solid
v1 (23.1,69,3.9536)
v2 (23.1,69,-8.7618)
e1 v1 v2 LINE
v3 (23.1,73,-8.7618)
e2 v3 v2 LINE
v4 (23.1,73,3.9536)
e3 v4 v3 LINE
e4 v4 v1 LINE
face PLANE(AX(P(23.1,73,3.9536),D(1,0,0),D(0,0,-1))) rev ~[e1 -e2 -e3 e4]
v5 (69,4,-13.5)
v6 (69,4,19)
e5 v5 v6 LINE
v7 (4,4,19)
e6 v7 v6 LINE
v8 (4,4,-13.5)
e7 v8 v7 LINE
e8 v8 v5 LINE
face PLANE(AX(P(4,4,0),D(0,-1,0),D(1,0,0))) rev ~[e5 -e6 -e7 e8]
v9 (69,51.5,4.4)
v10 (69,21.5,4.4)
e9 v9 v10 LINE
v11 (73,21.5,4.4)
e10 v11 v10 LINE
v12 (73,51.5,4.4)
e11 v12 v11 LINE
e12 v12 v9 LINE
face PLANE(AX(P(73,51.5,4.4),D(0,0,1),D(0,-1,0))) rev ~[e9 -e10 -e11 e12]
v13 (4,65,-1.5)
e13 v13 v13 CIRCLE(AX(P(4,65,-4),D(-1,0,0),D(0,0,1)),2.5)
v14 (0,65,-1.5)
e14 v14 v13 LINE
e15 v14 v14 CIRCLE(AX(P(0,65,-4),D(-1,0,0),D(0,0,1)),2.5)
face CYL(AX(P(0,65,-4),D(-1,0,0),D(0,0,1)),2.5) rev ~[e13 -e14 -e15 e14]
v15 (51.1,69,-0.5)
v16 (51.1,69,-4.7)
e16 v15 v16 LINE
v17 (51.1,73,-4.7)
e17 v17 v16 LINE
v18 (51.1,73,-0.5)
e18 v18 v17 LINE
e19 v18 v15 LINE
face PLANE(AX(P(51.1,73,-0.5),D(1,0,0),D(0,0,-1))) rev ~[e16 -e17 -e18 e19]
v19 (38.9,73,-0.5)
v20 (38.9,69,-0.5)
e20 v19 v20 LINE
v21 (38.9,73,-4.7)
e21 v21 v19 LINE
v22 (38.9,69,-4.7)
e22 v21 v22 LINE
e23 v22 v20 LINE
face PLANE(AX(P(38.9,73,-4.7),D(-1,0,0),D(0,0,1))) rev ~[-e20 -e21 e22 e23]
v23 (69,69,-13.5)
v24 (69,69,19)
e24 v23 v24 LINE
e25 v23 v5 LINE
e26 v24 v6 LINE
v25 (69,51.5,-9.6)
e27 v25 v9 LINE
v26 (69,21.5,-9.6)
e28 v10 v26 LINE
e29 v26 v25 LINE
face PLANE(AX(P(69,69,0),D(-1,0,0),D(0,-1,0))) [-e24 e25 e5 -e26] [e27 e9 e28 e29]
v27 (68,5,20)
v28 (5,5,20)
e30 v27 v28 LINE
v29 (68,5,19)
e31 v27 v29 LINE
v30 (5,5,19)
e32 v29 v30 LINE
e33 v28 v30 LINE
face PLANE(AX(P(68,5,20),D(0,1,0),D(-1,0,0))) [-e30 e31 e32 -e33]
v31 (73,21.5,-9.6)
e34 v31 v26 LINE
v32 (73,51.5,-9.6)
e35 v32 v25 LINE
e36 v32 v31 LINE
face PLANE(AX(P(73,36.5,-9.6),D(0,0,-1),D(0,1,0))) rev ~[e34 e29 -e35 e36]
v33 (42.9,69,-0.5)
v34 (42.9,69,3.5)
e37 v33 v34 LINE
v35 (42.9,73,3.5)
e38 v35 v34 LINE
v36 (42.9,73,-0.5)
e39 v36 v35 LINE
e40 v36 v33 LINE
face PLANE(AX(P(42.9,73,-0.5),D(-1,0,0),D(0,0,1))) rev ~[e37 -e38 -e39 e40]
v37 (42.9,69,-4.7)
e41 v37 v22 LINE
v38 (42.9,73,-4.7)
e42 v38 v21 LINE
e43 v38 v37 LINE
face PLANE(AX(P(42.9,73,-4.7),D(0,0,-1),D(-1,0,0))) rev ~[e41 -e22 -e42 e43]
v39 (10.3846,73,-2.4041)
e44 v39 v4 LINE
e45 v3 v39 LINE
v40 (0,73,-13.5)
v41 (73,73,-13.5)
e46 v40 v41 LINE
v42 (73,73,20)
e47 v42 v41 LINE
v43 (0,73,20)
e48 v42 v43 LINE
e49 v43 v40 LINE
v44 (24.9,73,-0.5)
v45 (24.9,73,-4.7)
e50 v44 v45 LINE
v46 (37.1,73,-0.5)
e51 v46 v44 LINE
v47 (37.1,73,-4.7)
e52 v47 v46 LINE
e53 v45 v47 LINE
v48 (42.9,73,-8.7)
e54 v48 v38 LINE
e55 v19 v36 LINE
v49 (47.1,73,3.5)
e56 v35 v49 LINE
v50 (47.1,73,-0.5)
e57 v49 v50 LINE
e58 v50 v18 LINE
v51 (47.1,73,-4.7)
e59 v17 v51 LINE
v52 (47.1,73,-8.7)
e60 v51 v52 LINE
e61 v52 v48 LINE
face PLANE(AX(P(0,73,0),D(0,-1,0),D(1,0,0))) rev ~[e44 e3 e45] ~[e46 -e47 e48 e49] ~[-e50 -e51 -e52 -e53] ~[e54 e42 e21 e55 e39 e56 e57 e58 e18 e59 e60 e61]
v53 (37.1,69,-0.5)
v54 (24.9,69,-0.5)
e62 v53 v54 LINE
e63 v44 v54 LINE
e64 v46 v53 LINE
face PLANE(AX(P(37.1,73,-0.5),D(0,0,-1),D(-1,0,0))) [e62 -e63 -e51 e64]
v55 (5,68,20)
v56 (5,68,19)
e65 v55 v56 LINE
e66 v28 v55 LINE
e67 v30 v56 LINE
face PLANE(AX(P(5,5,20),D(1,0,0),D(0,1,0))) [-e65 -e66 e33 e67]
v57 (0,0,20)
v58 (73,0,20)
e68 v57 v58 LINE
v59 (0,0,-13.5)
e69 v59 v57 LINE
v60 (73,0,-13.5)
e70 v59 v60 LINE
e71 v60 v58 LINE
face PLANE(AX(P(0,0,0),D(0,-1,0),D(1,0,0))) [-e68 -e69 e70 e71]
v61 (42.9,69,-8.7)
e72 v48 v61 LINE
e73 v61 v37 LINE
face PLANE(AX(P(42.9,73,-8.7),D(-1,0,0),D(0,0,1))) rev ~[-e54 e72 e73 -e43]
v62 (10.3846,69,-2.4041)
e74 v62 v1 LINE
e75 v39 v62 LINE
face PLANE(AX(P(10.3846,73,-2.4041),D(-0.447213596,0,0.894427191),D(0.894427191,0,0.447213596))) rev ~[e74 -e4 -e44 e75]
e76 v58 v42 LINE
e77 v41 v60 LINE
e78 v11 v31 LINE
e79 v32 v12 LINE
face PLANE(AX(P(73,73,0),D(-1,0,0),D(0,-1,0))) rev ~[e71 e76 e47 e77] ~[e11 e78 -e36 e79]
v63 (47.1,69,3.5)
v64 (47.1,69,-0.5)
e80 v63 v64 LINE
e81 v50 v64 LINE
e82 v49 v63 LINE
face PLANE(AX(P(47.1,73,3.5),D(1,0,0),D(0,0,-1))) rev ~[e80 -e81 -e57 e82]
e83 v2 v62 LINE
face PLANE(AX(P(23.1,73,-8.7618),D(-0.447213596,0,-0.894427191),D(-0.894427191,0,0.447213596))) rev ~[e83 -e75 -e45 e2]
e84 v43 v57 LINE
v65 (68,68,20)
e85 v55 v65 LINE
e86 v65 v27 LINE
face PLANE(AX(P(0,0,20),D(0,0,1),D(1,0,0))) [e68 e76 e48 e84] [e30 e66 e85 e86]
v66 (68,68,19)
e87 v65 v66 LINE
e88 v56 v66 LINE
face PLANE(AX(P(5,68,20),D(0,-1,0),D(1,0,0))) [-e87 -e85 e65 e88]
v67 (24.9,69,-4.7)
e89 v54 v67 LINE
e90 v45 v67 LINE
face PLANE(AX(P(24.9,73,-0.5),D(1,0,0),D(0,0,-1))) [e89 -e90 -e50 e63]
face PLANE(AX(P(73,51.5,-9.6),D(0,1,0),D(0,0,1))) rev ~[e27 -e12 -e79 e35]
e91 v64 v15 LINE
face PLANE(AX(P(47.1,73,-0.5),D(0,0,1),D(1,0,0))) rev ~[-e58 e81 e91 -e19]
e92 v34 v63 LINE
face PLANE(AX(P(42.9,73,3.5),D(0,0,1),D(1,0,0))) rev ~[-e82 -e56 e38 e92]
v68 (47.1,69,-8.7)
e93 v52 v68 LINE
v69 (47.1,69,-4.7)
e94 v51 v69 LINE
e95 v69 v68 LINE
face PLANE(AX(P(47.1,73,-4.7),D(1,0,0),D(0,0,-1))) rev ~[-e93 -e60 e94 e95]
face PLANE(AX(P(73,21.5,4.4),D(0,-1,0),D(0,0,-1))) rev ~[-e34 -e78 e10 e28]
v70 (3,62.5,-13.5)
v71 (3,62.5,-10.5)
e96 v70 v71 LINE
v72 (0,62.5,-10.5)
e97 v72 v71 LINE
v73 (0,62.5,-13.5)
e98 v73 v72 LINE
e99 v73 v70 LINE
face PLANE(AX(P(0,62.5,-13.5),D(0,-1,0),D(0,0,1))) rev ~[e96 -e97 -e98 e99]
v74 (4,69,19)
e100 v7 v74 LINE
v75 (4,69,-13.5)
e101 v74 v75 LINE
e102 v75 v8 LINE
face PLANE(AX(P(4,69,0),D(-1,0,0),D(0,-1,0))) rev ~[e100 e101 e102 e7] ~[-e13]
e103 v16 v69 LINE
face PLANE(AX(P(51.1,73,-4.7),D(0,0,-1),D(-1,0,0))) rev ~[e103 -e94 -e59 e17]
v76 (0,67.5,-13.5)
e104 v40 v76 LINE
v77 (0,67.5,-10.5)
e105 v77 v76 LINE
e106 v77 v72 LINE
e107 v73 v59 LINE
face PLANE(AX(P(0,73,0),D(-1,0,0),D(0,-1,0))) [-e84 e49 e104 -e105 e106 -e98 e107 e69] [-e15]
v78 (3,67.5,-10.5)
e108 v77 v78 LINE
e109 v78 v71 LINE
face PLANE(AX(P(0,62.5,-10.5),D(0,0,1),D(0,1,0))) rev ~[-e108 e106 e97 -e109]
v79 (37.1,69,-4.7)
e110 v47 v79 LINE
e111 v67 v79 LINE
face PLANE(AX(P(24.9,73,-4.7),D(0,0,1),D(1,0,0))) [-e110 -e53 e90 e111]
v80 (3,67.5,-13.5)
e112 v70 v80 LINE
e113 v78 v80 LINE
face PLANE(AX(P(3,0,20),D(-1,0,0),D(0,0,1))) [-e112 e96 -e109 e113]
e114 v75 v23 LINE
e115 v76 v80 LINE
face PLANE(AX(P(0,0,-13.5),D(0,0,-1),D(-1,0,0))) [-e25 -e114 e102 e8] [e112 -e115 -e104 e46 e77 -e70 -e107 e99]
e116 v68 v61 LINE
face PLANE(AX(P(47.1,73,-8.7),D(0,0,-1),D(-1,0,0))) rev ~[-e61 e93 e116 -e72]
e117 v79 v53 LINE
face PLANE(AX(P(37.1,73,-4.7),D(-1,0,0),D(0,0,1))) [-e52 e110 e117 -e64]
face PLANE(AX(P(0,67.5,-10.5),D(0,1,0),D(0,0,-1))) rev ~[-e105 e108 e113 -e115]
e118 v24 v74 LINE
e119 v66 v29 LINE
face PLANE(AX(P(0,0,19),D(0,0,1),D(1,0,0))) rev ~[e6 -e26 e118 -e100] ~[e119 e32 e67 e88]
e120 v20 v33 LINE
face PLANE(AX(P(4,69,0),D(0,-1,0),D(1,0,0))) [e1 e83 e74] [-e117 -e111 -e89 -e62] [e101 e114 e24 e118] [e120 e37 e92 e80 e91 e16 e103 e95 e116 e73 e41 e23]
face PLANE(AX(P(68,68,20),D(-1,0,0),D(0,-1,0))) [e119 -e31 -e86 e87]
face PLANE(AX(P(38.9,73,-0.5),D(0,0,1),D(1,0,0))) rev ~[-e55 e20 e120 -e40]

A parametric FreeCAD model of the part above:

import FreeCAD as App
import Part
import Sketcher
Q = App.Units.Quantity


def add_polygon(sketch, points):
    """Adds a closed chain of lines whose ends are joined by coincident constraints."""
    first, n = sketch.GeometryCount, len(points)
    for a, b in zip(points, points[1:] + points[:1]):
        sketch.addGeometry(Part.LineSegment(App.Vector(*a, 0), App.Vector(*b, 0)), False)
    for i in range(n):
        sketch.addConstraint(Sketcher.Constraint("Coincident", first + i, 2, first + (i + 1) % n, 1))

doc = App.newDocument("Part")
params = doc.addObject("Spreadsheet::Sheet", "Params")
for row, (alias, value) in enumerate([
    ("sketch1_width", "73 mm"),
    ("pad1_length", "20 mm"),
    ("sketch2_width", "65 mm"),
    ("pocket1_length", "20 mm"),
    ("sketch3_width", "65 mm"),
    ("pad2_length", "1 mm"),
    ("sketch4_width", "73 mm"),
    ("sketch4_width2", "65 mm"),
    ("pad3_length", "13.5 mm"),
    ("sketch5_width", "30 mm"),
    ("sketch5_height", "14 mm"),
    ("pocket2_length", "4 mm"),
    ("sketch6_diameter", "5 mm"),
    ("pocket3_length", "4 mm"),
    ("sketch7_width", "4 mm"),
    ("sketch7_width2", "4.4 mm"),
    ("sketch7_width3", "12.4 mm"),
    ("pocket4_length", "4 mm"),
    ("sketch8_width", "4 mm"),
    ("sketch8_width2", "4.4 mm"),
    ("sketch8_width3", "12.4 mm"),
    ("pad4_length", "4 mm"),
    ("sketch9_height", "3 mm"),
    ("sketch9_width", "5 mm"),
    ("pocket5_length", "3 mm"),
], start=1):
    params.set(f"A{row}", alias)
    params.set(f"B{row}", "=" + value)
    params.setAlias(f"B{row}", alias)

body = doc.addObject("PartDesign::Body", "Body")

# Sketch on XY plane
sketch1 = body.newObject("Sketcher::SketchObject", "Sketch")
sketch1.AttachmentSupport = (doc.getObject("XY_Plane"), [""])
sketch1.MapMode = "FlatFace"
add_polygon(sketch1, [(0, 73), (0, 0), (73, 0), (73, 73)])  # lines 0-3
sketch1.addConstraint([
    Sketcher.Constraint("Vertical", 0),
    Sketcher.Constraint("Horizontal", 1),
    Sketcher.Constraint("Vertical", 2),
    Sketcher.Constraint("Horizontal", 3),
    Sketcher.Constraint("Coincident", 0, 2, -1, 1),
    Sketcher.Constraint("Equal", 3, 0),
    Sketcher.Constraint("DistanceX", 1, 1, 1, 2, Q("73 mm")),
])
sketch1.setExpression("Constraints[10]", "Params.sketch1_width")
pad1 = body.newObject("PartDesign::Pad", "Pad")
pad1.Profile = sketch1
pad1.setExpression("Length", "Params.pad1_length")

# Sketch on XY plane
sketch2 = body.newObject("Sketcher::SketchObject", "Sketch001")
sketch2.AttachmentSupport = (doc.getObject("XY_Plane"), [""])
sketch2.MapMode = "FlatFace"
add_polygon(sketch2, [(4, 69), (69, 69), (69, 4), (4, 4)])  # lines 0-3
sketch2.addConstraint([
    Sketcher.Constraint("Horizontal", 0),
    Sketcher.Constraint("Vertical", 1),
    Sketcher.Constraint("Horizontal", 2),
    Sketcher.Constraint("Vertical", 3),
    Sketcher.Constraint("Equal", 2, 1),
    Sketcher.Constraint("DistanceY", -1, 1, 1, 2, Q("4 mm")),
    Sketcher.Constraint("DistanceX", -1, 1, 2, 2, Q("4 mm")),
    Sketcher.Constraint("DistanceX", 0, 1, 0, 2, Q("65 mm")),
])
sketch2.setExpression("Constraints[11]", "Params.sketch2_width")
pocket1 = body.newObject("PartDesign::Pocket", "Pocket")
pocket1.Profile = sketch2
pocket1.setExpression("Length", "Params.pocket1_length")
pocket1.Reversed = True

# Sketch on XY plane
sketch3 = body.newObject("Sketcher::SketchObject", "Sketch002")
sketch3.AttachmentSupport = (doc.getObject("XY_Plane"), [""])
sketch3.MapMode = "FlatFace"
sketch3.AttachmentOffset = App.Placement(App.Vector(0, 0, 20), App.Rotation())
add_polygon(sketch3, [(4, 69), (4, 4), (69, 4), (69, 69)])  # lines 0-3
add_polygon(sketch3, [(5, 5), (5, 68), (68, 68), (68, 5)])  # lines 4-7
sketch3.addConstraint([
    Sketcher.Constraint("Vertical", 0),
    Sketcher.Constraint("Horizontal", 1),
    Sketcher.Constraint("Vertical", 2),
    Sketcher.Constraint("Horizontal", 3),
    Sketcher.Constraint("Vertical", 4),
    Sketcher.Constraint("Horizontal", 5),
    Sketcher.Constraint("Vertical", 6),
    Sketcher.Constraint("Horizontal", 7),
    Sketcher.Constraint("Equal", 3, 0),
    Sketcher.Constraint("Equal", 7, 4),
    Sketcher.Constraint("DistanceX", 3, 2, 4, 2, Q("1 mm")),
    Sketcher.Constraint("DistanceY", 4, 2, 3, 2, Q("1 mm")),
    Sketcher.Constraint("DistanceX", 5, 2, 2, 2, Q("1 mm")),
    Sketcher.Constraint("DistanceX", 1, 1, 1, 2, Q("65 mm")),
    Sketcher.Constraint("DistanceX", -1, 1, 0, 2, Q("4 mm")),
    Sketcher.Constraint("DistanceY", -1, 1, 0, 2, Q("4 mm")),
])
sketch3.setExpression("Constraints[21]", "Params.sketch3_width")
pad2 = body.newObject("PartDesign::Pad", "Pad001")
pad2.Profile = sketch3
pad2.setExpression("Length", "Params.pad2_length")
pad2.Reversed = True

# Sketch on XY plane
sketch4 = body.newObject("Sketcher::SketchObject", "Sketch003")
sketch4.AttachmentSupport = (doc.getObject("XY_Plane"), [""])
sketch4.MapMode = "FlatFace"
add_polygon(sketch4, [(0, 0), (0, 73), (73, 73), (73, 0)])  # lines 0-3
add_polygon(sketch4, [(69, 69), (4, 69), (4, 4), (69, 4)])  # lines 4-7
sketch4.addConstraint([
    Sketcher.Constraint("Vertical", 0),
    Sketcher.Constraint("Horizontal", 1),
    Sketcher.Constraint("Vertical", 2),
    Sketcher.Constraint("Horizontal", 3),
    Sketcher.Constraint("Horizontal", 4),
    Sketcher.Constraint("Vertical", 5),
    Sketcher.Constraint("Horizontal", 6),
    Sketcher.Constraint("Vertical", 7),
    Sketcher.Constraint("Coincident", 3, 2, -1, 1),
    Sketcher.Constraint("Equal", 3, 0),
    Sketcher.Constraint("Equal", 6, 5),
    Sketcher.Constraint("DistanceX", 1, 1, 1, 2, Q("73 mm")),
    Sketcher.Constraint("DistanceX", 4, 2, 4, 1, Q("65 mm")),
    Sketcher.Constraint("DistanceX", -1, 1, 4, 2, Q("4 mm")),
    Sketcher.Constraint("DistanceY", -1, 1, 4, 2, Q("69 mm")),
])
sketch4.setExpression("Constraints[19]", "Params.sketch4_width")
sketch4.setExpression("Constraints[20]", "Params.sketch4_width2")
pad3 = body.newObject("PartDesign::Pad", "Pad002")
pad3.Profile = sketch4
pad3.setExpression("Length", "Params.pad3_length")
pad3.Reversed = True

# Sketch on YZ plane
sketch5 = body.newObject("Sketcher::SketchObject", "Sketch004")
sketch5.AttachmentSupport = (doc.getObject("YZ_Plane"), [""])
sketch5.MapMode = "FlatFace"
sketch5.AttachmentOffset = App.Placement(App.Vector(0, 0, 73), App.Rotation())
add_polygon(sketch5, [(22, -10), (52, -10), (52, 4), (22, 4)])  # lines 0-3
sketch5.addConstraint([
    Sketcher.Constraint("Horizontal", 0),
    Sketcher.Constraint("Vertical", 1),
    Sketcher.Constraint("Horizontal", 2),
    Sketcher.Constraint("Vertical", 3),
    Sketcher.Constraint("DistanceX", 0, 1, 0, 2, Q("30 mm")),
    Sketcher.Constraint("DistanceY", 1, 1, 1, 2, Q("14 mm")),
    Sketcher.Constraint("DistanceX", -1, 1, 0, 2, Q("51.5 mm")),
    Sketcher.Constraint("DistanceY", 0, 2, -1, 1, Q("9.6 mm")),
])
sketch5.setExpression("Constraints[8]", "Params.sketch5_width")
sketch5.setExpression("Constraints[9]", "Params.sketch5_height")
pocket2 = body.newObject("PartDesign::Pocket", "Pocket001")
pocket2.Profile = sketch5
pocket2.setExpression("Length", "Params.pocket2_length")

# Sketch on YZ plane
sketch6 = body.newObject("Sketcher::SketchObject", "Sketch005")
sketch6.AttachmentSupport = (doc.getObject("YZ_Plane"), [""])
sketch6.MapMode = "FlatFace"
sketch6.addGeometry(Part.Circle(App.Vector(65, -4, 0), App.Vector(0, 0, 1), 2.5), False)
sketch6.addConstraint([
    Sketcher.Constraint("Diameter", 0, Q("5 mm")),
    Sketcher.Constraint("DistanceX", -1, 1, 0, 3, Q("65 mm")),
    Sketcher.Constraint("DistanceY", 0, 3, -1, 1, Q("4 mm")),
])
sketch6.setExpression("Constraints[0]", "Params.sketch6_diameter")
pocket3 = body.newObject("PartDesign::Pocket", "Pocket002")
pocket3.Profile = sketch6
pocket3.setExpression("Length", "Params.pocket3_length")
pocket3.Reversed = True

# Sketch on XZ plane
sketch7 = body.newObject("Sketcher::SketchObject", "Sketch006")
sketch7.AttachmentSupport = (doc.getObject("XZ_Plane"), [""])
sketch7.MapMode = "FlatFace"
sketch7.AttachmentOffset = App.Placement(App.Vector(0, 0, -73), App.Rotation())
add_polygon(sketch7, [(47.2, -0.4), (51.2, -0.4), (51.2, -4.8), (47.2, -4.8), (47.2, -8.8), (42.8, -8.8), (42.8, -4.8), (38.8, -4.8), (38.8, -0.4), (42.8, -0.4), (42.8, 3.6), (47.2, 3.6)])  # lines 0-11
add_polygon(sketch7, [(24.8, -4.8), (24.8, -0.4), (37.2, -0.4), (37.2, -4.8)])  # lines 12-15
add_polygon(sketch7, [(23.2, -8.9), (10.2, -2.4), (23.2, 4.1)])  # lines 16-18
sketch7.addConstraint([
    Sketcher.Constraint("Horizontal", 0),
    Sketcher.Constraint("Vertical", 1),
    Sketcher.Constraint("Horizontal", 2),
    Sketcher.Constraint("Vertical", 3),
    Sketcher.Constraint("Horizontal", 4),
    Sketcher.Constraint("Vertical", 5),
    Sketcher.Constraint("Horizontal", 6),
    Sketcher.Constraint("Vertical", 7),
    Sketcher.Constraint("Horizontal", 8),
    Sketcher.Constraint("Vertical", 9),
    Sketcher.Constraint("Horizontal", 10),
    Sketcher.Constraint("Vertical", 11),
    Sketcher.Constraint("Vertical", 12),
    Sketcher.Constraint("Horizontal", 13),
    Sketcher.Constraint("Vertical", 14),
    Sketcher.Constraint("Horizontal", 15),
    Sketcher.Constraint("Vertical", 18),
    Sketcher.Constraint("Horizontal", 2, 2, 5, 2),
    Sketcher.Constraint("Horizontal", 0, 2, 7, 2),
    Sketcher.Constraint("Horizontal", 11, 2, 12, 2),
    Sketcher.Constraint("Horizontal", 6, 2, 14, 2),
    Sketcher.Constraint("Vertical", 5, 2, 8, 2),
    Sketcher.Constraint("Vertical", 3, 2, 10, 2),
    Sketcher.Constraint("Equal", 2, 6),
    Sketcher.Constraint("Equal", 10, 1),
    Sketcher.Constraint("Equal", 8, 3),
    Sketcher.Constraint("Equal", 5, 9),
    Sketcher.Constraint("Equal", 16, 17),
    Sketcher.Constraint("DistanceX", 0, 1, 0, 2, Q("4 mm")),
    Sketcher.Constraint("DistanceX", 4, 2, 4, 1, Q("4.4 mm")),
    Sketcher.Constraint("DistanceX", 13, 1, 13, 2, Q("12.4 mm")),
    Sketcher.Constraint("DistanceX", 12, 2, 7, 2, Q("14 mm")),
    Sketcher.Constraint("DistanceX", 17, 2, 13, 2, Q("14 mm")),
    Sketcher.Constraint("DistanceX", -1, 1, 0, 2, Q("51.2 mm")),
    Sketcher.Constraint("DistanceY", 0, 2, -1, 1, Q("0.4 mm")),
    Sketcher.Constraint("DistanceY", 18, 2, 18, 1, Q("13.039 mm")),
    Sketcher.Constraint("Distance", 16, Q("14.578 mm")),
    Sketcher.Constraint("DistanceY", 16, 2, -1, 1, Q("2.404 mm")),
])
sketch7.setExpression("Constraints[47]", "Params.sketch7_width")
sketch7.setExpression("Constraints[48]", "Params.sketch7_width2")
sketch7.setExpression("Constraints[49]", "Params.sketch7_width3")
pocket4 = body.newObject("PartDesign::Pocket", "Pocket003")
pocket4.Profile = sketch7
pocket4.setExpression("Length", "Params.pocket4_length")
pocket4.Reversed = True

# Sketch on XZ plane
sketch8 = body.newObject("Sketcher::SketchObject", "Sketch007")
sketch8.AttachmentSupport = (doc.getObject("XZ_Plane"), [""])
sketch8.MapMode = "FlatFace"
sketch8.AttachmentOffset = App.Placement(App.Vector(0, 0, -73), App.Rotation())
add_polygon(sketch8, [(47.2, -0.4), (51.2, -0.4), (51.2, -4.8), (47.2, -4.8), (47.2, -8.8), (42.8, -8.8), (42.8, -4.8), (38.8, -4.8), (38.8, -0.4), (42.8, -0.4), (42.8, 3.6), (47.2, 3.6)])  # lines 0-11
add_polygon(sketch8, [(38.9, -4.7), (42.9, -4.7), (42.9, -8.7), (47.1, -8.7), (47.1, -4.7), (51.1, -4.7), (51.1, -0.5), (47.1, -0.5), (47.1, 3.5), (42.9, 3.5), (42.9, -0.5), (38.9, -0.5)])  # lines 12-23
add_polygon(sketch8, [(24.8, -4.8), (24.8, -0.4), (37.2, -0.4), (37.2, -4.8)])  # lines 24-27
add_polygon(sketch8, [(24.9, -0.5), (24.9, -4.7), (37.1, -4.7), (37.1, -0.5)])  # lines 28-31
add_polygon(sketch8, [(23.2, -8.9), (10.2, -2.4), (23.2, 4.1)])  # lines 32-34
add_polygon(sketch8, [(10.4, -2.4), (23.1, -8.8), (23.1, 4)])  # lines 35-37
sketch8.addConstraint([
    Sketcher.Constraint("Horizontal", 0),
    Sketcher.Constraint("Vertical", 1),
    Sketcher.Constraint("Horizontal", 2),
    Sketcher.Constraint("Vertical", 3),
    Sketcher.Constraint("Horizontal", 4),
    Sketcher.Constraint("Vertical", 5),
    Sketcher.Constraint("Horizontal", 6),
    Sketcher.Constraint("Vertical", 7),
    Sketcher.Constraint("Horizontal", 8),
    Sketcher.Constraint("Vertical", 9),
    Sketcher.Constraint("Horizontal", 10),
    Sketcher.Constraint("Vertical", 11),
    Sketcher.Constraint("Horizontal", 12),
    Sketcher.Constraint("Vertical", 13),
    Sketcher.Constraint("Horizontal", 14),
    Sketcher.Constraint("Vertical", 15),
    Sketcher.Constraint("Horizontal", 16),
    Sketcher.Constraint("Vertical", 17),
    Sketcher.Constraint("Horizontal", 18),
    Sketcher.Constraint("Vertical", 19),
    Sketcher.Constraint("Horizontal", 20),
    Sketcher.Constraint("Vertical", 21),
    Sketcher.Constraint("Horizontal", 22),
    Sketcher.Constraint("Vertical", 23),
    Sketcher.Constraint("Vertical", 24),
    Sketcher.Constraint("Horizontal", 25),
    Sketcher.Constraint("Vertical", 26),
    Sketcher.Constraint("Horizontal", 27),
    Sketcher.Constraint("Vertical", 28),
    Sketcher.Constraint("Horizontal", 29),
    Sketcher.Constraint("Vertical", 30),
    Sketcher.Constraint("Horizontal", 31),
    Sketcher.Constraint("Vertical", 34),
    Sketcher.Constraint("Vertical", 36),
    Sketcher.Constraint("Parallel", 32, 35),
    Sketcher.Constraint("Parallel", 33, 37),
    Sketcher.Constraint("Horizontal", 2, 2, 5, 2),
    Sketcher.Constraint("Horizontal", 0, 2, 7, 2),
    Sketcher.Constraint("Horizontal", 12, 2, 15, 2),
    Sketcher.Constraint("Horizontal", 18, 2, 21, 2),
    Sketcher.Constraint("Horizontal", 11, 2, 24, 2),
    Sketcher.Constraint("Horizontal", 6, 2, 26, 2),
    Sketcher.Constraint("Horizontal", 23, 2, 28, 2),
    Sketcher.Constraint("Horizontal", 22, 2, 30, 2),
    Sketcher.Constraint("Horizontal", 32, 2, 37, 2),
    Sketcher.Constraint("Vertical", 5, 2, 8, 2),
    Sketcher.Constraint("Vertical", 3, 2, 10, 2),
    Sketcher.Constraint("Vertical", 15, 2, 18, 2),
    Sketcher.Constraint("Vertical", 13, 2, 20, 2),
    Sketcher.Constraint("Equal", 2, 6),
    Sketcher.Constraint("Equal", 8, 12),
    Sketcher.Constraint("Equal", 12, 16),
    Sketcher.Constraint("Equal", 10, 1),
    Sketcher.Constraint("Equal", 22, 3),
    Sketcher.Constraint("Equal", 5, 9),
    Sketcher.Constraint("Equal", 11, 13),
    Sketcher.Constraint("Equal", 20, 17),
    Sketcher.Constraint("Equal", 15, 19),
    Sketcher.Constraint("Equal", 32, 33),
    Sketcher.Constraint("DistanceX", 5, 2, 12, 2, Q("0.1 mm")),
    Sketcher.Constraint("DistanceY", 5, 2, 12, 2, Q("0.1 mm")),
    Sketcher.Constraint("DistanceX", 14, 2, 3, 2, Q("0.1 mm")),
    Sketcher.Constraint("DistanceX", 27, 2, 28, 2, Q("0.1 mm")),
    Sketcher.Constraint("DistanceX", 29, 2, 26, 2, Q("0.1 mm")),
    Sketcher.Constraint("DistanceX", 35, 2, 34, 2, Q("0.1 mm")),
    Sketcher.Constraint("DistanceX", 0, 1, 0, 2, Q("4 mm")),
    Sketcher.Constraint("DistanceX", 4, 2, 4, 1, Q("4.4 mm")),
    Sketcher.Constraint("DistanceX", 25, 1, 25, 2, Q("12.4 mm")),
    Sketcher.Constraint("DistanceX", 24, 2, 7, 2, Q("14 mm")),
    Sketcher.Constraint("DistanceX", -1, 1, 0, 2, Q("51.2 mm")),
    Sketcher.Constraint("DistanceY", 0, 2, -1, 1, Q("0.4 mm")),
    Sketcher.Constraint("DistanceX", -1, 1, 33, 2, Q("23.2 mm")),
    Sketcher.Constraint("DistanceY", 34, 2, 34, 1, Q("13.039 mm")),
    Sketcher.Constraint("Distance", 32, Q("14.578 mm")),
    Sketcher.Constraint("DistanceY", 36, 1, 36, 2, Q("12.7154 mm")),
    Sketcher.Constraint("DistanceY", 32, 2, -1, 1, Q("2.404 mm")),
])
sketch8.setExpression("Constraints[103]", "Params.sketch8_width")
sketch8.setExpression("Constraints[104]", "Params.sketch8_width2")
sketch8.setExpression("Constraints[105]", "Params.sketch8_width3")
pad4 = body.newObject("PartDesign::Pad", "Pad003")
pad4.Profile = sketch8
pad4.setExpression("Length", "Params.pad4_length")

# Sketch on YZ plane
sketch9 = body.newObject("Sketcher::SketchObject", "Sketch008")
sketch9.AttachmentSupport = (doc.getObject("YZ_Plane"), [""])
sketch9.MapMode = "FlatFace"
add_polygon(sketch9, [(67.5, -13.5), (62.5, -13.5), (62.5, -10.5), (67.5, -10.5)])  # lines 0-3
sketch9.addConstraint([
    Sketcher.Constraint("Horizontal", 0),
    Sketcher.Constraint("Vertical", 1),
    Sketcher.Constraint("Horizontal", 2),
    Sketcher.Constraint("Vertical", 3),
    Sketcher.Constraint("DistanceY", 1, 1, 1, 2, Q("3 mm")),
    Sketcher.Constraint("DistanceX", 0, 2, 0, 1, Q("5 mm")),
    Sketcher.Constraint("DistanceX", -1, 1, 0, 2, Q("62.5 mm")),
    Sketcher.Constraint("DistanceY", 0, 2, -1, 1, Q("13.5 mm")),
])
sketch9.setExpression("Constraints[8]", "Params.sketch9_height")
sketch9.setExpression("Constraints[9]", "Params.sketch9_width")
pocket5 = body.newObject("PartDesign::Pocket", "Pocket004")
pocket5.Profile = sketch9
pocket5.setExpression("Length", "Params.pocket5_length")
pocket5.Reversed = True

doc.recompute()
